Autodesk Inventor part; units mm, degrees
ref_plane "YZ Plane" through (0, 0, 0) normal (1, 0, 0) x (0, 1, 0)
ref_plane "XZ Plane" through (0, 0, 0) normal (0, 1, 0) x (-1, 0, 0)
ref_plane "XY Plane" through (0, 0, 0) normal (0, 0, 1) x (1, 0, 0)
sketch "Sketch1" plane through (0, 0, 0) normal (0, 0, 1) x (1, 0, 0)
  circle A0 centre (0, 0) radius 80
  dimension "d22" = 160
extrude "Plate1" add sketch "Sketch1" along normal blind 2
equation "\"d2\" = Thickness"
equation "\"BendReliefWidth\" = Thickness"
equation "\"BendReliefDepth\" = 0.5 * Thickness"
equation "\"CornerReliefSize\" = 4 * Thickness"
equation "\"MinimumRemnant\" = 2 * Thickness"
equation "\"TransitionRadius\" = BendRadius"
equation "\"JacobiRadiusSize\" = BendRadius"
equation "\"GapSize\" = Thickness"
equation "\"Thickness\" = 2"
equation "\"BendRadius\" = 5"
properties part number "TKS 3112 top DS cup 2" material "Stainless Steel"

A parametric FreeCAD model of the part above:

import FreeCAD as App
import Part
import Sketcher

V = App.Vector

doc = App.newDocument("Part")
params = doc.addObject("Spreadsheet::Sheet", "Params")
for row, (alias, value) in enumerate([
    ("sketch1_diameter", "160 mm"),
    ("pad1_length", "2 mm"),
], start=1):
    params.set(f"A{row}", alias)
    params.set(f"B{row}", "=" + value)
    params.setAlias(f"B{row}", alias)

body = doc.addObject("PartDesign::Body", "Body")

sketch1 = body.newObject("Sketcher::SketchObject", "Sketch")
sketch1.AttachmentSupport = (doc.getObject("XY_Plane"), [""])
sketch1.MapMode = "FlatFace"
sketch1.addGeometry(Part.Circle(V(0, 0, 0), V(0, 0, 1), 80), False)
sketch1.addConstraint(Sketcher.Constraint("Coincident", 0, 3, -1, 1))
sketch1.addConstraint(Sketcher.Constraint("Diameter", 0, 160.0))
sketch1.setExpression("Constraints[1]", "Params.sketch1_diameter")
pad1 = body.newObject("PartDesign::Pad", "Pad")
pad1.Profile = sketch1
pad1.setExpression("Length", "Params.pad1_length")

doc.recompute()
